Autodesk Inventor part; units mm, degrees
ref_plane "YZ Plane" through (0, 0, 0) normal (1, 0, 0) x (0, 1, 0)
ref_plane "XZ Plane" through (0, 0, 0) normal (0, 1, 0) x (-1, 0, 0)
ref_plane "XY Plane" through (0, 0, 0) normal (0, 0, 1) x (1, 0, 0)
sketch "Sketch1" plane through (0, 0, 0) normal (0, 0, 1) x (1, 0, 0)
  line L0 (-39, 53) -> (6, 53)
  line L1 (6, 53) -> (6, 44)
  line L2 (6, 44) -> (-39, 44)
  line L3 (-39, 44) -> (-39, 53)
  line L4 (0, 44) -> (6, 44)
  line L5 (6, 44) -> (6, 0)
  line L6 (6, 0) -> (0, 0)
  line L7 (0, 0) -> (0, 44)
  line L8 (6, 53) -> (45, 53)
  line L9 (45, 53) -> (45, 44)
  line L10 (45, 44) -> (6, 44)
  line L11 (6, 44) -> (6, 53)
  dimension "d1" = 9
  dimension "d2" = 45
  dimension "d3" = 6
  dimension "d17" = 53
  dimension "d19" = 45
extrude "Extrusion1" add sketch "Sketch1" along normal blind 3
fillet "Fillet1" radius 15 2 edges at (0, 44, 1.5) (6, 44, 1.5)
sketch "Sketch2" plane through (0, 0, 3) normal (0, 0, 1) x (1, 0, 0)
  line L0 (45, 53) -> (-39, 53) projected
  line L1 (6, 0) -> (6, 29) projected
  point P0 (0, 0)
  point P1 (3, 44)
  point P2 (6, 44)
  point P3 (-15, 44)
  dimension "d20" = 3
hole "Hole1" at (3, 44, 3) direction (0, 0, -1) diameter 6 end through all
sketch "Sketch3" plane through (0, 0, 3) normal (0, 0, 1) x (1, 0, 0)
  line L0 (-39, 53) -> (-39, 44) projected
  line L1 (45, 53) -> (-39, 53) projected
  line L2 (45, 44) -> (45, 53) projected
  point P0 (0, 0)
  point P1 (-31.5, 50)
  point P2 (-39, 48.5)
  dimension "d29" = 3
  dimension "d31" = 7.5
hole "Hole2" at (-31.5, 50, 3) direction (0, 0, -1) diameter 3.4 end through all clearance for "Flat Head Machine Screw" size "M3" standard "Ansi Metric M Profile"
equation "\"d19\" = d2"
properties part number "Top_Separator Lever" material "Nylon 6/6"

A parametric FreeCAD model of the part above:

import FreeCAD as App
import Part
import Sketcher
from FreeCAD import Vector
Q = App.Units.Quantity


def edges_at(feature, points):
    """Names of the edges that pass closest to the given points."""
    edges = feature.Shape.Edges
    near = lambda p: min(range(len(edges)), key=lambda i: edges[i].distToShape(Part.Vertex(*p))[0])
    return sorted({f"Edge{near(p) + 1}" for p in points})

doc = App.newDocument("Part")
params = doc.addObject("Spreadsheet::Sheet", "Params")
for row, (alias, value) in enumerate([
    ("sketch1_width", "6 mm"),
    ("sketch1_height", "9 mm"),
    ("pad1_length", "3 mm"),
    ("fillet_radius", "15 mm"),
    ("sketch2_diameter", "6 mm"),
    ("hole_diameter", "6 mm"),
    ("sketch3_diameter", "3.4 mm"),
    ("hole2_diameter", "3.4 mm"),
], start=1):
    params.set(f"A{row}", alias)
    params.set(f"B{row}", "=" + value)
    params.setAlias(f"B{row}", alias)

body = doc.addObject("PartDesign::Body", "Body")

# Sketch on XY plane
sketch1 = body.newObject("Sketcher::SketchObject", "Sketch")
sketch1.AttachmentSupport = (doc.getObject("XY_Plane"), [""])
sketch1.MapMode = "FlatFace"
sketch1.addGeometry([
    Part.LineSegment(Vector(-39, 53, 0), Vector(-39, 44, 0)),  # 0
    Part.LineSegment(Vector(-39, 44, 0), Vector(0, 44, 0)),  # 1
    Part.LineSegment(Vector(0, 44, 0), Vector(0, 0, 0)),  # 2
    Part.LineSegment(Vector(0, 0, 0), Vector(6, 0, 0)),  # 3
    Part.LineSegment(Vector(6, 0, 0), Vector(6, 44, 0)),  # 4
    Part.LineSegment(Vector(6, 44, 0), Vector(45, 44, 0)),  # 5
    Part.LineSegment(Vector(45, 44, 0), Vector(45, 53, 0)),  # 6
    Part.LineSegment(Vector(45, 53, 0), Vector(-39, 53, 0)),  # 7
], False)
sketch1.addConstraint([
    Sketcher.Constraint("Coincident", 0, 2, 1, 1),
    Sketcher.Constraint("Coincident", 1, 2, 2, 1),
    Sketcher.Constraint("Coincident", 2, 2, 3, 1),
    Sketcher.Constraint("Coincident", 3, 2, 4, 1),
    Sketcher.Constraint("Coincident", 4, 2, 5, 1),
    Sketcher.Constraint("Coincident", 5, 2, 6, 1),
    Sketcher.Constraint("Coincident", 6, 2, 7, 1),
    Sketcher.Constraint("Coincident", 7, 2, 0, 1),
    Sketcher.Constraint("Vertical", 0),
    Sketcher.Constraint("Horizontal", 1),
    Sketcher.Constraint("Vertical", 2),
    Sketcher.Constraint("Horizontal", 3),
    Sketcher.Constraint("Vertical", 4),
    Sketcher.Constraint("Horizontal", 5),
    Sketcher.Constraint("Vertical", 6),
    Sketcher.Constraint("Horizontal", 7),
    Sketcher.Constraint("Coincident", 2, 2, -1, 1),
    Sketcher.Constraint("Horizontal", 1, 2, 4, 2),
    Sketcher.Constraint("Equal", 1, 5),
    Sketcher.Constraint("DistanceX", 3, 1, 3, 2, Q("6 mm")),
    Sketcher.Constraint("DistanceY", 0, 2, 0, 1, Q("9 mm")),
    Sketcher.Constraint("DistanceX", -1, 1, 5, 2, Q("45 mm")),
    Sketcher.Constraint("DistanceY", -1, 1, 6, 2, Q("53 mm")),
])
sketch1.setExpression("Constraints[19]", "Params.sketch1_width")
sketch1.setExpression("Constraints[20]", "Params.sketch1_height")
pad1 = body.newObject("PartDesign::Pad", "Pad")
pad1.Profile = sketch1
pad1.setExpression("Length", "Params.pad1_length")
doc.recompute()

fillet = body.newObject("PartDesign::Fillet", "Fillet")
fillet.Base = (pad1, edges_at(pad1, [(0, 44, 1.5), (6, 44, 1.5)]))
fillet.setExpression("Radius", "Params.fillet_radius")

# Sketch on XY plane
sketch2 = body.newObject("Sketcher::SketchObject", "Sketch001")
sketch2.AttachmentSupport = (doc.getObject("XY_Plane"), [""])
sketch2.MapMode = "FlatFace"
sketch2.AttachmentOffset = App.Placement(Vector(0, 0, 3), App.Rotation())
sketch2.addGeometry(Part.Circle(Vector(3, 44, 0), Vector(0, 0, 1), 3), False)
sketch2.addConstraint([
    Sketcher.Constraint("Diameter", 0, Q("6 mm")),
    Sketcher.Constraint("DistanceX", -1, 1, 0, 3, Q("3 mm")),
    Sketcher.Constraint("DistanceY", -1, 1, 0, 3, Q("44 mm")),
])
sketch2.setExpression("Constraints[0]", "Params.sketch2_diameter")
doc.recompute()
hole = body.newObject("PartDesign::Hole", "Hole")
hole.Profile = sketch2
hole.ThreadType = "None"
hole.setExpression("Diameter", "Params.hole_diameter")
hole.DepthType = "ThroughAll"

# Sketch on XY plane
sketch3 = body.newObject("Sketcher::SketchObject", "Sketch002")
sketch3.AttachmentSupport = (doc.getObject("XY_Plane"), [""])
sketch3.MapMode = "FlatFace"
sketch3.AttachmentOffset = App.Placement(Vector(0, 0, 3), App.Rotation())
sketch3.addGeometry(Part.Circle(Vector(-31.5, 50, 0), Vector(0, 0, 1), 1.7), False)
sketch3.addConstraint([
    Sketcher.Constraint("Diameter", 0, Q("3.4 mm")),
    Sketcher.Constraint("DistanceY", -1, 1, 0, 3, Q("50 mm")),
    Sketcher.Constraint("DistanceX", 0, 3, -1, 1, Q("31.5 mm")),
])
sketch3.setExpression("Constraints[0]", "Params.sketch3_diameter")
doc.recompute()
hole2 = body.newObject("PartDesign::Hole", "Hole001")
hole2.Profile = sketch3
hole2.ThreadType = "None"
hole2.setExpression("Diameter", "Params.hole2_diameter")
hole2.DepthType = "ThroughAll"

doc.recompute()
